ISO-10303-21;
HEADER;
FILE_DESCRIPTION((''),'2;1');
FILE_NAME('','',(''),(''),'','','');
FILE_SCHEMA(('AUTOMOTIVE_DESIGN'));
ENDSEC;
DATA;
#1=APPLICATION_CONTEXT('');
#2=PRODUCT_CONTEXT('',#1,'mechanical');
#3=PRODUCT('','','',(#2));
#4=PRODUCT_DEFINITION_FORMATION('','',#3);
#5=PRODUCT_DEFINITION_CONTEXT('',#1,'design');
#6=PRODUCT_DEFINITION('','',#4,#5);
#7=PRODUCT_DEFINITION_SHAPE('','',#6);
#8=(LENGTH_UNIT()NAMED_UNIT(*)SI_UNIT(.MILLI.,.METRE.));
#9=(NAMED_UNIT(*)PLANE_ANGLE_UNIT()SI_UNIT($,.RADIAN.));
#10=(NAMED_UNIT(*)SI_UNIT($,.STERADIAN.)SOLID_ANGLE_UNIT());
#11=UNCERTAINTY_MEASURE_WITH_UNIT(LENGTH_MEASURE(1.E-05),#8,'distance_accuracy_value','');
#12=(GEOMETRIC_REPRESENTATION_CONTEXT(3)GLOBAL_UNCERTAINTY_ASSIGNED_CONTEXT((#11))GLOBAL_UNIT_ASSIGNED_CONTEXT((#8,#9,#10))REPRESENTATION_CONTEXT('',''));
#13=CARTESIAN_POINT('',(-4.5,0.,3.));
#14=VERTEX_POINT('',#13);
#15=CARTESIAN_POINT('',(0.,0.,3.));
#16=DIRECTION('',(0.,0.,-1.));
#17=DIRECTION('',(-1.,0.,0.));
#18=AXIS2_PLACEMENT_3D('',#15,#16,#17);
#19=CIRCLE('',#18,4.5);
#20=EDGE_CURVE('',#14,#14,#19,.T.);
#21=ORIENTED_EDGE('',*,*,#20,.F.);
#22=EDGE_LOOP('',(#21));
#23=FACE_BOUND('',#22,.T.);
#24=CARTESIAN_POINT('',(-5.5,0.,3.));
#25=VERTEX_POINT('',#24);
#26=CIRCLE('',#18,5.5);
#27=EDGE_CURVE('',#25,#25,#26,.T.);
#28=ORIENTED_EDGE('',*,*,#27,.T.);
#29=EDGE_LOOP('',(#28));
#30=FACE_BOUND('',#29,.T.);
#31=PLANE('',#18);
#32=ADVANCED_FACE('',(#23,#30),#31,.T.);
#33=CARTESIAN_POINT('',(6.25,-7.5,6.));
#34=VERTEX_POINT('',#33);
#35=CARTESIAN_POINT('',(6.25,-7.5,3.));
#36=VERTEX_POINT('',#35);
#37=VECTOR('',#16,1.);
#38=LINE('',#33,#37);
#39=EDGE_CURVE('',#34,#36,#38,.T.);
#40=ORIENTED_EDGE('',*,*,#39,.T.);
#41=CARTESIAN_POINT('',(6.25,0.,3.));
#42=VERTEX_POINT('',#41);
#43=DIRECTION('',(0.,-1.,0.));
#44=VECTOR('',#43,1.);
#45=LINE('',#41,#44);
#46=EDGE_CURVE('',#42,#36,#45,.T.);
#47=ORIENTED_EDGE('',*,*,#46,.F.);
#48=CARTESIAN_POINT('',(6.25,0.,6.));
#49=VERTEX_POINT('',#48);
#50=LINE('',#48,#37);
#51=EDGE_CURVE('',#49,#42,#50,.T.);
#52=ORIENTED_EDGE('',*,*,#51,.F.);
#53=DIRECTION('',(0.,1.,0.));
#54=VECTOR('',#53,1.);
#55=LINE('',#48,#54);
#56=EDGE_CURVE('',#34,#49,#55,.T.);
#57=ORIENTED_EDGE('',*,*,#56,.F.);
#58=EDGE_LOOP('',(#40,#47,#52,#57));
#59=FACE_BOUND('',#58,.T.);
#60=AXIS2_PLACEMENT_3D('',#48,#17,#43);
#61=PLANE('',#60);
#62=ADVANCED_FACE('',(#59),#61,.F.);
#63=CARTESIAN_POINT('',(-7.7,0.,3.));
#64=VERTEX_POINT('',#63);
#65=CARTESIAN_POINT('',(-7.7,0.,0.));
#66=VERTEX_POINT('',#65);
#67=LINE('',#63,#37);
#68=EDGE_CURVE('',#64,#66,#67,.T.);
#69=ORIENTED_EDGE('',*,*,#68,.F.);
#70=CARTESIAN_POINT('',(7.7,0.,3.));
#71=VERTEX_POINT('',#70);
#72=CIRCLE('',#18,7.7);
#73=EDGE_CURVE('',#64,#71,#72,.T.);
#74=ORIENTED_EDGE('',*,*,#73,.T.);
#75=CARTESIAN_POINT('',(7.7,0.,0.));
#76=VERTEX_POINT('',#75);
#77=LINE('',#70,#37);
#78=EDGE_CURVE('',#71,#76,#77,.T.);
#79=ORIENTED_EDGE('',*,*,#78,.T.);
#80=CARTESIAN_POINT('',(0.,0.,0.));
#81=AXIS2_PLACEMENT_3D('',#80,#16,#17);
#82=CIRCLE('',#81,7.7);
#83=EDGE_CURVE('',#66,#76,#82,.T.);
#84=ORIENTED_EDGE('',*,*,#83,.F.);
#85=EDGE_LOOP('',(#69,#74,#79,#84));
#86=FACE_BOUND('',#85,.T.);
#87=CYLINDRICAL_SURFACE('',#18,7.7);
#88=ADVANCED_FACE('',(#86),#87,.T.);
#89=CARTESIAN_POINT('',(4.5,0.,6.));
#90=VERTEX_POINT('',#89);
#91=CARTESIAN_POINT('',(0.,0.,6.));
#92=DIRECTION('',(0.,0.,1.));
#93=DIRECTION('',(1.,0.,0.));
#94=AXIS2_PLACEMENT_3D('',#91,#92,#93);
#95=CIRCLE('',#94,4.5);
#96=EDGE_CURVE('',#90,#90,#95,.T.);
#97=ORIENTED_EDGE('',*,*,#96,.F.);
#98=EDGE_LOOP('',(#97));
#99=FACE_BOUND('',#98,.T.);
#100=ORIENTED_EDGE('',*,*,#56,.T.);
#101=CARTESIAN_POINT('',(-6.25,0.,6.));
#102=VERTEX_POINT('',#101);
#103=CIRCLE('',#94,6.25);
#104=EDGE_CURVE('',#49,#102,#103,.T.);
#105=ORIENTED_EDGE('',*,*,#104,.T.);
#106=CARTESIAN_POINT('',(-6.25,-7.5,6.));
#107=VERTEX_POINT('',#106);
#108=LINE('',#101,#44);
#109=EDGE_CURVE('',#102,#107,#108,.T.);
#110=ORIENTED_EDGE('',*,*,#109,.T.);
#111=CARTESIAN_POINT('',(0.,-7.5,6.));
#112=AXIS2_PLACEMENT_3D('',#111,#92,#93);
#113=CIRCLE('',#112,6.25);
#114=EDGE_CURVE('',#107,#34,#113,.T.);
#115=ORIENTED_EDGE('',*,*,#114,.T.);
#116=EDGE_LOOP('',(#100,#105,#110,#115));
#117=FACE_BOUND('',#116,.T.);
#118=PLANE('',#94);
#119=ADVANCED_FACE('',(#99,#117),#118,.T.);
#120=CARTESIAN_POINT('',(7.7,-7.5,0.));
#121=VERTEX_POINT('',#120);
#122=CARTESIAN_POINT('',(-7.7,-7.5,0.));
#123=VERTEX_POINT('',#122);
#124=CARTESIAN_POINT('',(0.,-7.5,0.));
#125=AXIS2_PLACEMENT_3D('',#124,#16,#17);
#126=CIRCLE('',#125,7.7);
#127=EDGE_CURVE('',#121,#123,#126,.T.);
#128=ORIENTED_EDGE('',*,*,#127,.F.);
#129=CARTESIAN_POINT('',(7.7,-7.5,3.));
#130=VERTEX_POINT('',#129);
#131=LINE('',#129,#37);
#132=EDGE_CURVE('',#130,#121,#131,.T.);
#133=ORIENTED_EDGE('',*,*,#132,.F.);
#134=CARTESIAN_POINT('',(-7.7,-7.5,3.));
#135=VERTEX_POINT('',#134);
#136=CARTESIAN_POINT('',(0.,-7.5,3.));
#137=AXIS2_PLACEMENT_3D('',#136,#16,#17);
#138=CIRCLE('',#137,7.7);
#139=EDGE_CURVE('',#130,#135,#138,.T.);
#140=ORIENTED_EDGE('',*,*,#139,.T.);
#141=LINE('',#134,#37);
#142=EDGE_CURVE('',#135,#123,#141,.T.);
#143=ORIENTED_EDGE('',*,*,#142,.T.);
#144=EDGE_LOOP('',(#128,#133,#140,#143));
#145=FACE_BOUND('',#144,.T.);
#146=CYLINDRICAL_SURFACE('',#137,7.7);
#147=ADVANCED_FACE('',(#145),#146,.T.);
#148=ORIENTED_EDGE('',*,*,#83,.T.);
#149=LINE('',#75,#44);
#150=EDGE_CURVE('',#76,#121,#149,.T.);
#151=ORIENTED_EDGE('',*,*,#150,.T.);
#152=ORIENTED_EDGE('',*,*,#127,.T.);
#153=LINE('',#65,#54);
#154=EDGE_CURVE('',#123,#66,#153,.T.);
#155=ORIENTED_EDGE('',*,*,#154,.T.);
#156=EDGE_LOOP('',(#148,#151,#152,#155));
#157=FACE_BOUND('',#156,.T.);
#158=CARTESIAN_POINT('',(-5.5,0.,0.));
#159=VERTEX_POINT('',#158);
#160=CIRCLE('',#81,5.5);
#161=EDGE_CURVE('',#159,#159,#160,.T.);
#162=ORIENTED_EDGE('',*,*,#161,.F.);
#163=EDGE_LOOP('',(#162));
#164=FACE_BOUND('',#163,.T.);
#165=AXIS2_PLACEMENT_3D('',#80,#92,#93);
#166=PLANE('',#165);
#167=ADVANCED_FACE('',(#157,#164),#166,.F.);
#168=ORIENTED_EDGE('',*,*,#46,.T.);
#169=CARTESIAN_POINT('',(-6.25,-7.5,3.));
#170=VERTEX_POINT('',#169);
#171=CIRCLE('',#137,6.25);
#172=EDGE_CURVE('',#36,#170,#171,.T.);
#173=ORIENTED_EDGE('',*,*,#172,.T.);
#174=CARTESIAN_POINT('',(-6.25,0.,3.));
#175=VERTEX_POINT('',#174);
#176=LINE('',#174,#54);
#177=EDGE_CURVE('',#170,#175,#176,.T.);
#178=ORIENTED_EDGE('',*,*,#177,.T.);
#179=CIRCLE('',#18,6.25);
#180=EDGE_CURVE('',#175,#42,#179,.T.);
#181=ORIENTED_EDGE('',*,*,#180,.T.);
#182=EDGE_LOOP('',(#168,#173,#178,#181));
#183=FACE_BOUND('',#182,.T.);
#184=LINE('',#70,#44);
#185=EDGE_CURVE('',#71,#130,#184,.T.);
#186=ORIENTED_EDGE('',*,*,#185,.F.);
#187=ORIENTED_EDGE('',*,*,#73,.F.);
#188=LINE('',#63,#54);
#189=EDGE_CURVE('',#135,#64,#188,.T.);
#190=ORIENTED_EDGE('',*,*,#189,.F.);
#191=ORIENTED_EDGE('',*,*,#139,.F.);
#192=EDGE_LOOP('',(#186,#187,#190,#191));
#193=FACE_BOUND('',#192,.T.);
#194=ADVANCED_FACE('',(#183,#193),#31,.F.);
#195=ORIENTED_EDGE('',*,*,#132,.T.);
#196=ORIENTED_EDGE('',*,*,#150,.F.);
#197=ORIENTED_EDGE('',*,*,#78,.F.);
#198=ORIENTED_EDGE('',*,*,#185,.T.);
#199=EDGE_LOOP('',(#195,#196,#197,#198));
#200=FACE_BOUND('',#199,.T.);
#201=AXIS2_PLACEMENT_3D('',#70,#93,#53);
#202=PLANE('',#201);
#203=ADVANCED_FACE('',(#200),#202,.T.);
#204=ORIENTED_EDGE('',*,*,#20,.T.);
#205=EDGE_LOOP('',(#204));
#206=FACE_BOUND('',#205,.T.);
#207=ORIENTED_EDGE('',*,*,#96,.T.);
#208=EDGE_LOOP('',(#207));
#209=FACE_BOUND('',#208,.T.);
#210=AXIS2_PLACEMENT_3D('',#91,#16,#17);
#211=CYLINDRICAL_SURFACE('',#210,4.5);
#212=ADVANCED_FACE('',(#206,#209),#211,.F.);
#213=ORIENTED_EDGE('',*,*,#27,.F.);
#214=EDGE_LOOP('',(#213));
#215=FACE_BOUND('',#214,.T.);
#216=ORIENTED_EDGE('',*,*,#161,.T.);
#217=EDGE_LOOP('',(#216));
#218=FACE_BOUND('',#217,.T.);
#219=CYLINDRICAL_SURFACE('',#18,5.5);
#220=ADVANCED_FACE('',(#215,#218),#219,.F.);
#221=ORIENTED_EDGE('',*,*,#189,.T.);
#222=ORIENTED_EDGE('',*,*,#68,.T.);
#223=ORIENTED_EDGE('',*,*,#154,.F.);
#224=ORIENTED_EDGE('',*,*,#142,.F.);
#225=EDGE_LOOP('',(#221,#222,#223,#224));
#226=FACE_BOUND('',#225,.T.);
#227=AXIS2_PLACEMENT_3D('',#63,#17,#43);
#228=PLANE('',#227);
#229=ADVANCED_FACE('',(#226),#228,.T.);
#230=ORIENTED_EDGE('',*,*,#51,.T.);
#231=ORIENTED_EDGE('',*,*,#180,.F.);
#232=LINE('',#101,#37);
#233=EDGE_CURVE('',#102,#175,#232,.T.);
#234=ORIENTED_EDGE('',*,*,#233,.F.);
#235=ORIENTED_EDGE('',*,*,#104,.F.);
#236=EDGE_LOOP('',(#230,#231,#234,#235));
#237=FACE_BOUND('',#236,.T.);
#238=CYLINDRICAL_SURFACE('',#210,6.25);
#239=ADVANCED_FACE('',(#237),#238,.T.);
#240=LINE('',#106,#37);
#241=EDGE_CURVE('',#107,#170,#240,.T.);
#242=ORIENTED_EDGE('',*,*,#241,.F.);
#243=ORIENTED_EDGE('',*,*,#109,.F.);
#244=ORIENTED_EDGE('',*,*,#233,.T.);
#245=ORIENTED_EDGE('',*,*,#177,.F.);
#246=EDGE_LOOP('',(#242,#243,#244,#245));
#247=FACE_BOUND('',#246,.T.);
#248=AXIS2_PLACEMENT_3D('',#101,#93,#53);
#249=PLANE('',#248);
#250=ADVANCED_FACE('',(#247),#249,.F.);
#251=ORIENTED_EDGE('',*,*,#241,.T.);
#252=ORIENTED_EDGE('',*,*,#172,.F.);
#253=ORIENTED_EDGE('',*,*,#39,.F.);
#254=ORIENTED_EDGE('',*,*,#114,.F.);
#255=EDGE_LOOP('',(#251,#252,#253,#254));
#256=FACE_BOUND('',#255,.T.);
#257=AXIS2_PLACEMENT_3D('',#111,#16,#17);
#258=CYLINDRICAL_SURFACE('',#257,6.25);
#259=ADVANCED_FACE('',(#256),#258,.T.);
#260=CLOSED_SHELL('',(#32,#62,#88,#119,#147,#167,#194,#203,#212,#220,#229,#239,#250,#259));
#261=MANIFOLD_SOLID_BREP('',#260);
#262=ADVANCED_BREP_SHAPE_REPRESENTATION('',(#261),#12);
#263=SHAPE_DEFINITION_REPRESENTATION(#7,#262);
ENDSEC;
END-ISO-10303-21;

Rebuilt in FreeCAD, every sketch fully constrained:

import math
import FreeCAD as App
import Part
import Sketcher
from FreeCAD import Vector

doc = App.newDocument("Part")
body = doc.addObject("PartDesign::Body", "Body")

# Sketch on XY plane
sketch1 = doc.addObject("Sketcher::SketchObject", "Sketch")
body.addObject(sketch1)
sketch1.AttachmentSupport = (doc.XY_Plane, [""])
sketch1.MapMode = "FlatFace"
sketch1.addGeometry([
    Part.LineSegment(Vector(6.2, -7.5, 0), Vector(6.2, 0, 0)),  # 0
    Part.ArcOfCircle(Part.Circle(Vector(0, 0, 0), Vector(0, 0, 1), 6.2), math.radians(0), math.radians(180)),  # 1
    Part.LineSegment(Vector(-6.2, 0, 0), Vector(-6.2, -7.5, 0)),  # 2
    Part.ArcOfCircle(Part.Circle(Vector(0, -7.5, 0), Vector(0, 0, 1), 6.2), math.radians(180), math.radians(360)),  # 3
    Part.Circle(Vector(0, 0, 0), Vector(0, 0, 1), 4.5),  # 4
], False)
sketch1.addConstraint([
    Sketcher.Constraint("Tangent", 0, 2, 1, 1),
    Sketcher.Constraint("Tangent", 1, 2, 2, 1),
    Sketcher.Constraint("Tangent", 2, 2, 3, 1),
    Sketcher.Constraint("Tangent", 3, 2, 0, 1),
    Sketcher.Constraint("Vertical", 0),
    Sketcher.Constraint("Vertical", 2),
    Sketcher.Constraint("Coincident", 1, 3, -1, 1),
    Sketcher.Constraint("Coincident", 4, 3, -1, 1),
    Sketcher.Constraint("Diameter", 4, 9.0),
    Sketcher.Constraint("Radius", 1, 6.25),
    Sketcher.Constraint("DistanceY", 0, 1, 0, 2, 7.5),
])
pad1 = doc.addObject("PartDesign::Pad", "Pad")
body.addObject(pad1)
pad1.Profile = sketch1
pad1.Length = 6

# Sketch on XY plane
sketch2 = doc.addObject("Sketcher::SketchObject", "Sketch001")
body.addObject(sketch2)
sketch2.AttachmentSupport = (doc.XY_Plane, [""])
sketch2.MapMode = "FlatFace"
sketch2.addGeometry([
    Part.LineSegment(Vector(-8, -8, 0), Vector(-8, 0, 0)),  # 0
    Part.ArcOfCircle(Part.Circle(Vector(0, 0, 0), Vector(0, 0, 1), 8), math.radians(0), math.radians(180)),  # 1
    Part.LineSegment(Vector(8, 0, 0), Vector(8, -8, 0)),  # 2
    Part.ArcOfCircle(Part.Circle(Vector(0, -8, 0), Vector(0, 0, 1), 8), math.radians(180), math.radians(360)),  # 3
    Part.Circle(Vector(0, 0, 0), Vector(0, 0, 1), 6),  # 4
], False)
sketch2.addConstraint([
    Sketcher.Constraint("Tangent", 0, 2, 1, 2),
    Sketcher.Constraint("Tangent", 1, 1, 2, 1),
    Sketcher.Constraint("Tangent", 2, 2, 3, 2),
    Sketcher.Constraint("Tangent", 3, 1, 0, 1),
    Sketcher.Constraint("Vertical", 0),
    Sketcher.Constraint("Vertical", 2),
    Sketcher.Constraint("Coincident", 1, 3, -1, 1),
    Sketcher.Constraint("Coincident", 4, 3, -1, 1),
    Sketcher.Constraint("Diameter", 4, 11.0),
    Sketcher.Constraint("Radius", 1, 7.7),
    Sketcher.Constraint("DistanceY", 0, 1, 0, 2, 7.5),
])
pad2 = doc.addObject("PartDesign::Pad", "Pad001")
body.addObject(pad2)
pad2.Profile = sketch2
pad2.Length = 3

# Sketch on XY plane
sketch3 = doc.addObject("Sketcher::SketchObject", "Sketch002")
body.addObject(sketch3)
sketch3.AttachmentSupport = (doc.XY_Plane, [""])
sketch3.MapMode = "FlatFace"
sketch3.addGeometry(Part.Circle(Vector(0, 0, 0), Vector(0, 0, 1), 6), False)
sketch3.addConstraint([
    Sketcher.Constraint("Coincident", 0, 3, -1, 1),
    Sketcher.Constraint("Diameter", 0, 11.0),
])
pocket1 = doc.addObject("PartDesign::Pocket", "Pocket")
body.addObject(pocket1)
pocket1.Profile = sketch3
pocket1.Length = 3
pocket1.Reversed = True

doc.recompute()
